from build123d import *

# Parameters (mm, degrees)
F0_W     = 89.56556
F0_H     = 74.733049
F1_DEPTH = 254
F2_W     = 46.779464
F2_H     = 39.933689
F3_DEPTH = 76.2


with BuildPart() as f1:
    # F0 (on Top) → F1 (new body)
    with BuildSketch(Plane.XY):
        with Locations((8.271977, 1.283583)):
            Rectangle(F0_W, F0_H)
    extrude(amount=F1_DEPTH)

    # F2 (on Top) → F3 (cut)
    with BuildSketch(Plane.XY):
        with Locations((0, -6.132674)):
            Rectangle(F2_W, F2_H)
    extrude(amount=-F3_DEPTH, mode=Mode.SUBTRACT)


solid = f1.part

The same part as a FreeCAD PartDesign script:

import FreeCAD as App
import Part
import Sketcher

V = App.Vector
Q = App.Units.Quantity

doc = App.newDocument("Part")
body = doc.addObject("PartDesign::Body", "Body")

sketch1 = body.newObject("Sketcher::SketchObject", "Sketch")
sketch1.AttachmentSupport = (doc.getObject("XY_Plane"), [""])
sketch1.MapMode = "FlatFace"
sketch1.addGeometry(Part.LineSegment(V(-37, 39, 0), V(-37, -36, 0)), False)
sketch1.addGeometry(Part.LineSegment(V(-37, -36, 0), V(53, -36, 0)), False)
sketch1.addGeometry(Part.LineSegment(V(53, -36, 0), V(53, 39, 0)), False)
sketch1.addGeometry(Part.LineSegment(V(53, 39, 0), V(-37, 39, 0)), False)
sketch1.addConstraint(Sketcher.Constraint("Coincident", 0, 2, 1, 1))
sketch1.addConstraint(Sketcher.Constraint("Coincident", 1, 2, 2, 1))
sketch1.addConstraint(Sketcher.Constraint("Coincident", 2, 2, 3, 1))
sketch1.addConstraint(Sketcher.Constraint("Coincident", 3, 2, 0, 1))
sketch1.addConstraint(Sketcher.Constraint("Vertical", 0))
sketch1.addConstraint(Sketcher.Constraint("Horizontal", 1))
sketch1.addConstraint(Sketcher.Constraint("Vertical", 2))
sketch1.addConstraint(Sketcher.Constraint("Horizontal", 3))
sketch1.addConstraint(Sketcher.Constraint("DistanceX", 1, 1, 1, 2, 89.56556))
sketch1.addConstraint(Sketcher.Constraint("DistanceY", 0, 2, 0, 1, 74.733049))
sketch1.addConstraint(Sketcher.Constraint("DistanceY", 0, 2, -1, 1, 36.082941))
sketch1.addConstraint(Sketcher.Constraint("DistanceX", 0, 2, -1, 1, 36.510803))
pad1 = body.newObject("PartDesign::Pad", "Pad")
pad1.Profile = sketch1
pad1.Length = Q("10 in")

sketch2 = body.newObject("Sketcher::SketchObject", "Sketch001")
sketch2.AttachmentSupport = (doc.getObject("XY_Plane"), [""])
sketch2.MapMode = "FlatFace"
sketch2.addGeometry(Part.LineSegment(V(-23, 14, 0), V(-23, -26, 0)), False)
sketch2.addGeometry(Part.LineSegment(V(-23, -26, 0), V(23, -26, 0)), False)
sketch2.addGeometry(Part.LineSegment(V(23, -26, 0), V(23, 14, 0)), False)
sketch2.addGeometry(Part.LineSegment(V(23, 14, 0), V(-23, 14, 0)), False)
sketch2.addConstraint(Sketcher.Constraint("Coincident", 0, 2, 1, 1))
sketch2.addConstraint(Sketcher.Constraint("Coincident", 1, 2, 2, 1))
sketch2.addConstraint(Sketcher.Constraint("Coincident", 2, 2, 3, 1))
sketch2.addConstraint(Sketcher.Constraint("Coincident", 3, 2, 0, 1))
sketch2.addConstraint(Sketcher.Constraint("Vertical", 0))
sketch2.addConstraint(Sketcher.Constraint("Horizontal", 1))
sketch2.addConstraint(Sketcher.Constraint("Vertical", 2))
sketch2.addConstraint(Sketcher.Constraint("Horizontal", 3))
sketch2.addConstraint(Sketcher.Constraint("DistanceY", 0, 2, 0, 1, 39.933689))
sketch2.addConstraint(Sketcher.Constraint("DistanceX", 1, 1, 1, 2, 46.779464))
sketch2.addConstraint(Sketcher.Constraint("DistanceX", 0, 2, -1, 1, 23.389732))
sketch2.addConstraint(Sketcher.Constraint("DistanceY", 0, 2, -1, 1, 26.099518))
pocket1 = body.newObject("PartDesign::Pocket", "Pocket")
pocket1.Profile = sketch2
pocket1.Length = Q("3 in")

doc.recompute()
